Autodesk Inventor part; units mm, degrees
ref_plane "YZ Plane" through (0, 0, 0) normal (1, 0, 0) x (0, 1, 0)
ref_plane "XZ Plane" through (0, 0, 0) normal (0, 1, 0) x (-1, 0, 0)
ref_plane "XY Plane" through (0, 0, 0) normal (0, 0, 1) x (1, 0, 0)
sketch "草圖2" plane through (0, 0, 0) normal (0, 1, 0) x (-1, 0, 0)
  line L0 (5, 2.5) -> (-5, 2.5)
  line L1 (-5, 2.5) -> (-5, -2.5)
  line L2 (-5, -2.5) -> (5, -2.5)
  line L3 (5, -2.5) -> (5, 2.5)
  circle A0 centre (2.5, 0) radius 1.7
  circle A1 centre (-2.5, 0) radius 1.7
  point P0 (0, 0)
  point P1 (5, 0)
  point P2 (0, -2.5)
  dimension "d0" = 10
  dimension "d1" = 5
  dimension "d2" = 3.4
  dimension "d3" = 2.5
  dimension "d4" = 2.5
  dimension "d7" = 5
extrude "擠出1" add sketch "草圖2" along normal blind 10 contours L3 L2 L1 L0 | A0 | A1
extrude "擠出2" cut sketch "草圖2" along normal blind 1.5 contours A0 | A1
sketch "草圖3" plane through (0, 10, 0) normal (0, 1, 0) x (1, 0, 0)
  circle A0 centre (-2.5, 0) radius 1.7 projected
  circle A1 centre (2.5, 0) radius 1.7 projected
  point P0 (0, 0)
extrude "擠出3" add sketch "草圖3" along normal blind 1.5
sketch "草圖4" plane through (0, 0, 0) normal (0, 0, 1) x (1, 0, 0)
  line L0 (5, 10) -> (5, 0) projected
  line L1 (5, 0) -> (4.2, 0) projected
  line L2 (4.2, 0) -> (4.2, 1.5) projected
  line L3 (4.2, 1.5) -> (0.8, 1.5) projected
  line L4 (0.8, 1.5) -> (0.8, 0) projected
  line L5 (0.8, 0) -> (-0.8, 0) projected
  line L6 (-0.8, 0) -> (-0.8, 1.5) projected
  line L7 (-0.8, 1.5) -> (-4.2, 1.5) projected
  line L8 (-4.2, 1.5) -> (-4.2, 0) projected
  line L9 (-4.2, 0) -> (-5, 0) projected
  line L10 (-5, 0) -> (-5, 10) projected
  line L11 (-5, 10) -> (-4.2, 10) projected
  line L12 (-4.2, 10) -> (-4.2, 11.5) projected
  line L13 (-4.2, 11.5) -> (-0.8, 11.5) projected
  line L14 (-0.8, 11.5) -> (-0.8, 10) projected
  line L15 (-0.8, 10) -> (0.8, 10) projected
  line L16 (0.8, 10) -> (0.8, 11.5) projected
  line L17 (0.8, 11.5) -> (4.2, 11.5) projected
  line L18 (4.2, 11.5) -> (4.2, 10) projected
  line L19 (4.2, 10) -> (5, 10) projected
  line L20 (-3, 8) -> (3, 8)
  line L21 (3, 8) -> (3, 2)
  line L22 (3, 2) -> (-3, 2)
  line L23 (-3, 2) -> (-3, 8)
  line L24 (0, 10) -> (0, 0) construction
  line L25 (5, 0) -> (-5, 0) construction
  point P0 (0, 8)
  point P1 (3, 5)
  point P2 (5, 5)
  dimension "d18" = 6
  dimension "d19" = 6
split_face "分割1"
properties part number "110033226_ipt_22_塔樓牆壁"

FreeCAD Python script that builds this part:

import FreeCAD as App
import Part
import Sketcher
from FreeCAD import Vector

doc = App.newDocument("Part")
body = doc.addObject("PartDesign::Body", "Body")

# Sketch on XZ plane
sketch1 = doc.addObject("Sketcher::SketchObject", "Sketch")
body.addObject(sketch1)
sketch1.AttachmentSupport = (doc.XZ_Plane, [""])
sketch1.MapMode = "FlatFace"
sketch1.addGeometry([
    Part.LineSegment(Vector(-5, -2, 0), Vector(-5, 2, 0)),
    Part.LineSegment(Vector(-5, 2, 0), Vector(5, 2, 0)),
    Part.LineSegment(Vector(5, 2, 0), Vector(5, -2, 0)),
    Part.LineSegment(Vector(5, -2, 0), Vector(-5, -2, 0)),
], False)
sketch1.addConstraint([
    Sketcher.Constraint("Coincident", 0, 2, 1, 1),
    Sketcher.Constraint("Coincident", 1, 2, 2, 1),
    Sketcher.Constraint("Coincident", 2, 2, 3, 1),
    Sketcher.Constraint("Coincident", 3, 2, 0, 1),
    Sketcher.Constraint("Vertical", 0),
    Sketcher.Constraint("Horizontal", 1),
    Sketcher.Constraint("Vertical", 2),
    Sketcher.Constraint("Horizontal", 3),
    Sketcher.Constraint("Symmetric", 0, 2, 2, 2, -1, 1),
    Sketcher.Constraint("DistanceX", 1, 1, 1, 2, 10.0),
    Sketcher.Constraint("DistanceY", 0, 1, 0, 2, 5.0),
])
pad1 = doc.addObject("PartDesign::Pad", "Pad")
body.addObject(pad1)
pad1.Profile = sketch1
pad1.Length = 10
pad1.Reversed = True

# Sketch on XZ plane
sketch2 = doc.addObject("Sketcher::SketchObject", "Sketch001")
body.addObject(sketch2)
sketch2.AttachmentSupport = (doc.XZ_Plane, [""])
sketch2.MapMode = "FlatFace"
sketch2.addGeometry([
    Part.Circle(Vector(-2.5, 0, 0), Vector(0, 0, 1), 1.7),
    Part.Circle(Vector(2.5, 0, 0), Vector(0, 0, 1), 1.7),
], False)
sketch2.addConstraint([
    Sketcher.Constraint("Equal", 0, 1),
    Sketcher.Constraint("Symmetric", 0, 3, 1, 3, -1, 1),
    Sketcher.Constraint("PointOnObject", 0, 3, -1),
    Sketcher.Constraint("Diameter", 0, 3.4),
    Sketcher.Constraint("DistanceX", 0, 3, 1, 3, 5.0),
])
pocket1 = doc.addObject("PartDesign::Pocket", "Pocket")
body.addObject(pocket1)
pocket1.Profile = sketch2
pocket1.Length = 1.5

# Sketch on XZ plane
sketch3 = doc.addObject("Sketcher::SketchObject", "Sketch002")
body.addObject(sketch3)
sketch3.AttachmentSupport = (doc.XZ_Plane, [""])
sketch3.MapMode = "FlatFace"
sketch3.AttachmentOffset = App.Placement(Vector(0, 0, -10), App.Rotation())
sketch3.addGeometry([
    Part.Circle(Vector(-2.5, 0, 0), Vector(0, 0, 1), 1.7),
    Part.Circle(Vector(2.5, 0, 0), Vector(0, 0, 1), 1.7),
], False)
sketch3.addConstraint([
    Sketcher.Constraint("Equal", 0, 1),
    Sketcher.Constraint("Symmetric", 0, 3, 1, 3, -1, 1),
    Sketcher.Constraint("PointOnObject", 0, 3, -1),
    Sketcher.Constraint("Diameter", 0, 3.4),
    Sketcher.Constraint("DistanceX", 0, 3, 1, 3, 5.0),
])
pad2 = doc.addObject("PartDesign::Pad", "Pad001")
body.addObject(pad2)
pad2.Profile = sketch3
pad2.Length = 1.5
pad2.Reversed = True

doc.recompute()
